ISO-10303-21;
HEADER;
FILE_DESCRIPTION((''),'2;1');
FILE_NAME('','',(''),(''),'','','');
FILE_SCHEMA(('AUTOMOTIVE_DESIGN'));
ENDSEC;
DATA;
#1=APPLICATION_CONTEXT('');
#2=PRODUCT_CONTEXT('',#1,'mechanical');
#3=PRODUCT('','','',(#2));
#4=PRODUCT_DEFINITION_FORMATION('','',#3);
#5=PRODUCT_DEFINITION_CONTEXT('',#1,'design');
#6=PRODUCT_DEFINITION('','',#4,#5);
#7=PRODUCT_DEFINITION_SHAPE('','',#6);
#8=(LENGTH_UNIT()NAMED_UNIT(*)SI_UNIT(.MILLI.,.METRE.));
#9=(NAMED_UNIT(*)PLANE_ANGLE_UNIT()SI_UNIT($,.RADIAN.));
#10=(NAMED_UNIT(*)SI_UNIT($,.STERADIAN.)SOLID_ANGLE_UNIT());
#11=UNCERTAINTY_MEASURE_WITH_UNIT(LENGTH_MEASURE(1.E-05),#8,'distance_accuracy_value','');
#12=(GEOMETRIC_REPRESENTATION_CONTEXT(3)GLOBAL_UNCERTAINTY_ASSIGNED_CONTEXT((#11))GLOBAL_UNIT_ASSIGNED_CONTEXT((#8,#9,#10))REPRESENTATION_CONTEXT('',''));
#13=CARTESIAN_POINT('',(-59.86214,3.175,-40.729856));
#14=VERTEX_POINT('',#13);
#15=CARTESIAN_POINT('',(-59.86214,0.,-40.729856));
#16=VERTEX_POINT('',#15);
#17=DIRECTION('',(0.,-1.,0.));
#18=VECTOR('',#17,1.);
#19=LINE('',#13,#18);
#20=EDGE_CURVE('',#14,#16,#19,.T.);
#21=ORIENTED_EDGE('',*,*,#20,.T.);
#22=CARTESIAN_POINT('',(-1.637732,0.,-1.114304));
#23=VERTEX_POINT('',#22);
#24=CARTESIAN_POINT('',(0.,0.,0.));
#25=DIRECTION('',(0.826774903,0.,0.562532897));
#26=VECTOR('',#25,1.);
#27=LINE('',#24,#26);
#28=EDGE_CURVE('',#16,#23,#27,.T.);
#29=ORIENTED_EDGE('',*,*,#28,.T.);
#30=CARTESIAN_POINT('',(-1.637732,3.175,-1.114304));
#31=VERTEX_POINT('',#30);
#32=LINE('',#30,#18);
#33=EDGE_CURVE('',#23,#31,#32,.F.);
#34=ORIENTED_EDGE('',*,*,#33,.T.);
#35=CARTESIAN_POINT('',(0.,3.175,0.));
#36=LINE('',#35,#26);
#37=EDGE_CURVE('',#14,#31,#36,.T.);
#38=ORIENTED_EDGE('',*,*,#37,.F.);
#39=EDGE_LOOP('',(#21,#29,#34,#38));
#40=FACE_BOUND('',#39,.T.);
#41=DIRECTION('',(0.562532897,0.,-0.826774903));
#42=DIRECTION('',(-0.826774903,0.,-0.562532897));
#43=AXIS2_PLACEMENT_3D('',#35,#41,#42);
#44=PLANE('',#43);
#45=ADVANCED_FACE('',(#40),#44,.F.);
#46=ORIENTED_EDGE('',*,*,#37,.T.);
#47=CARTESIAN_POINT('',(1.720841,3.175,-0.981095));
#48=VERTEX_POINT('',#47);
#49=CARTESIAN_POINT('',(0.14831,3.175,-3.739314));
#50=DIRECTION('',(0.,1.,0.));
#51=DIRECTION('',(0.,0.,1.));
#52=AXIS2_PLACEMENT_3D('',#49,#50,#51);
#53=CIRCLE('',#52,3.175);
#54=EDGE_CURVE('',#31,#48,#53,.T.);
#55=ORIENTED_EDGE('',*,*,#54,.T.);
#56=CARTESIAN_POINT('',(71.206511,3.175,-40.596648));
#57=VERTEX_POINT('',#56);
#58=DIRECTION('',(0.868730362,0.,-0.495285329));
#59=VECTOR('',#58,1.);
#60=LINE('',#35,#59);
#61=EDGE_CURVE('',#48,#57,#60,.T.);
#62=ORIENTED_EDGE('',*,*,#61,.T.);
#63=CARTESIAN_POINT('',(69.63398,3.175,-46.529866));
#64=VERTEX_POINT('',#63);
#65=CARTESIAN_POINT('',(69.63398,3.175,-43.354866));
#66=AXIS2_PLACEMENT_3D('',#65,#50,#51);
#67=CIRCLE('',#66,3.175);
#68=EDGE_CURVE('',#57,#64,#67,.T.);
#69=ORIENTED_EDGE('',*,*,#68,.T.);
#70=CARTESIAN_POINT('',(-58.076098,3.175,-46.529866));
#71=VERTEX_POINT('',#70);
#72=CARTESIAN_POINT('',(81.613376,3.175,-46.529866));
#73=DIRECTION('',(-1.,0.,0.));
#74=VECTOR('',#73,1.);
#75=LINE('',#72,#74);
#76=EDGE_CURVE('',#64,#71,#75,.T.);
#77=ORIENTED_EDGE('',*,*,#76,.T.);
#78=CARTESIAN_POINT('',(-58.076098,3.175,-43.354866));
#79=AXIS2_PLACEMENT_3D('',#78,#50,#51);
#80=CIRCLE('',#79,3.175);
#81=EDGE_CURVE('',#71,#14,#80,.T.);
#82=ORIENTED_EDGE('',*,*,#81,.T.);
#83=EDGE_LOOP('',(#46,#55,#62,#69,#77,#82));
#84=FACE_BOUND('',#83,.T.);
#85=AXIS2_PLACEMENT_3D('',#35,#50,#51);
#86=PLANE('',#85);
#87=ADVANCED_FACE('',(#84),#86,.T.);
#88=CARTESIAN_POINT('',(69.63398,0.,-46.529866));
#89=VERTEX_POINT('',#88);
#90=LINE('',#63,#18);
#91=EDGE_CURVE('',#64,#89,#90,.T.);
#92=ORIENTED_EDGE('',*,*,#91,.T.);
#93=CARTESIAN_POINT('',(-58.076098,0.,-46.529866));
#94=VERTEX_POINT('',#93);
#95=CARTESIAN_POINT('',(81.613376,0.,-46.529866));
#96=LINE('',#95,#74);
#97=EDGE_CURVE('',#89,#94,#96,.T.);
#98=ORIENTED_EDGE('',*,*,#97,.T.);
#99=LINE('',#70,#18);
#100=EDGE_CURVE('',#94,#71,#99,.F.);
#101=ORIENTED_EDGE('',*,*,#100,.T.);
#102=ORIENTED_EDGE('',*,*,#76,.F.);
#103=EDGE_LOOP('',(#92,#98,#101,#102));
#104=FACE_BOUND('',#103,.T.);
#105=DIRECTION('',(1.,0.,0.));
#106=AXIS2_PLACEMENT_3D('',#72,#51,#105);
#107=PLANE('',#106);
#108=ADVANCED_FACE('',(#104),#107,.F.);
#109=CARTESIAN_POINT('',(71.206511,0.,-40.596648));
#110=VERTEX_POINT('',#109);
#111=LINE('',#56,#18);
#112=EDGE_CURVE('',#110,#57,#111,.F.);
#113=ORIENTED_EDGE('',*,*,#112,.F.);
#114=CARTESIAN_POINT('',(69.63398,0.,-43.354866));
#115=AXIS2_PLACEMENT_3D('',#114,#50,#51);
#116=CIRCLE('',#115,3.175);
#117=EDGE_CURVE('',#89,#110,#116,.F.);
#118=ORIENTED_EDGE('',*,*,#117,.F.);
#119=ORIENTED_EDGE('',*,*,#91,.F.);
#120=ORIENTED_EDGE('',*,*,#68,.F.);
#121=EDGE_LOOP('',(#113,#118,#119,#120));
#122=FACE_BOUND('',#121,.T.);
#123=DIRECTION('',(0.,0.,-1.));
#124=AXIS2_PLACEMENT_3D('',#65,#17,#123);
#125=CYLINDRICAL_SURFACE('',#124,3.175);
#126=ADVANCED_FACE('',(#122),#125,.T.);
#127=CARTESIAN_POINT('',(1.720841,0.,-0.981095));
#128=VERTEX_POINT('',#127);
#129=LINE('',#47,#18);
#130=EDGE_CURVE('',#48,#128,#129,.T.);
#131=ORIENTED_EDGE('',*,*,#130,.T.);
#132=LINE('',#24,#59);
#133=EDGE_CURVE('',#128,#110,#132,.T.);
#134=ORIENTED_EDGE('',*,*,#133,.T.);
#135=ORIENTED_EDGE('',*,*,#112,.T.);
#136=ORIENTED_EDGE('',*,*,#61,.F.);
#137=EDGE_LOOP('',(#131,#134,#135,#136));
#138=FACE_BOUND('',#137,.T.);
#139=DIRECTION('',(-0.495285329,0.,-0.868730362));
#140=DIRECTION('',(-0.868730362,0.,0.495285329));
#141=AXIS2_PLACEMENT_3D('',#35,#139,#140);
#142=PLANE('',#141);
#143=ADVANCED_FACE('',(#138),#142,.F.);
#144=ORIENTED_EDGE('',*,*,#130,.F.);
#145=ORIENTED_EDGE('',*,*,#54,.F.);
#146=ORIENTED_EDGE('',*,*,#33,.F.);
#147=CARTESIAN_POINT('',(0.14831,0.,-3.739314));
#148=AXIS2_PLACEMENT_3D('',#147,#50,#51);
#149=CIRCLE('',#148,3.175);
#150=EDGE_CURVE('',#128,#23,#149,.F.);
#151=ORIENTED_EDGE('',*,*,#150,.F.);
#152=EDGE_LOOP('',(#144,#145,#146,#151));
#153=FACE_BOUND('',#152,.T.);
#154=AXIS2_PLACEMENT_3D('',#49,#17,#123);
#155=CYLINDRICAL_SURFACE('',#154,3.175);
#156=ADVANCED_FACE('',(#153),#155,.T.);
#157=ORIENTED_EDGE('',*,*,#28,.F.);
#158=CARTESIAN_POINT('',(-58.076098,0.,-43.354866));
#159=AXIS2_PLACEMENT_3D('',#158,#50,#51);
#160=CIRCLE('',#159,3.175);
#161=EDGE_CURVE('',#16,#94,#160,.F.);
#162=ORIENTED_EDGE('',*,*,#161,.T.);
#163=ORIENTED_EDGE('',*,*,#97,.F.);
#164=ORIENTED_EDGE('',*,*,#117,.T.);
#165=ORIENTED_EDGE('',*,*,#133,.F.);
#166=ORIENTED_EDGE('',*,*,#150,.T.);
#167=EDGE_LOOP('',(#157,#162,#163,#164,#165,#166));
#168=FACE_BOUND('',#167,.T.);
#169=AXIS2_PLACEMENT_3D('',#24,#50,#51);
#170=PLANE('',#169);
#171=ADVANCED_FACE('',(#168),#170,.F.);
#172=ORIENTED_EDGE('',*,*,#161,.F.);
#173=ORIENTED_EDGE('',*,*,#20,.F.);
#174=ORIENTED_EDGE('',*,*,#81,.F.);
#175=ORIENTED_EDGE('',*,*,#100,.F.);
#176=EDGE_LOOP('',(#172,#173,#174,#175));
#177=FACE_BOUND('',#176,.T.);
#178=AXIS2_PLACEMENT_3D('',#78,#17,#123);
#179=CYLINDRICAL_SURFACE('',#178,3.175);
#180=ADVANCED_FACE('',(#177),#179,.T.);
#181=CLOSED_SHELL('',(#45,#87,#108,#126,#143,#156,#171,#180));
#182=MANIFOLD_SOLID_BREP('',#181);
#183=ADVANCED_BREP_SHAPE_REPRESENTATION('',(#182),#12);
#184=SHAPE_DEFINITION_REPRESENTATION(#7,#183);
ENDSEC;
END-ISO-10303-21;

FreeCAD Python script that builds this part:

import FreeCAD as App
import Part
import Sketcher

V = App.Vector
Q = App.Units.Quantity


def edges_at(feature, points):
    """Names of the edges that pass closest to the given points."""
    edges = feature.Shape.Edges
    near = lambda p: min(range(len(edges)), key=lambda i: edges[i].distToShape(Part.Vertex(*p))[0])
    return sorted({f"Edge{near(p) + 1}" for p in points})


def add_polygon(sketch, points):
    """Adds a closed chain of lines whose ends are joined by coincident constraints."""
    first, n = sketch.GeometryCount, len(points)
    for a, b in zip(points, points[1:] + points[:1]):
        sketch.addGeometry(Part.LineSegment(App.Vector(*a, 0), App.Vector(*b, 0)), False)
    for i in range(n):
        sketch.addConstraint(Sketcher.Constraint("Coincident", first + i, 2, first + (i + 1) % n, 1))

doc = App.newDocument("Part")
body = doc.addObject("PartDesign::Body", "Body")

# Sketch on XZ plane
sketch1 = body.newObject("Sketcher::SketchObject", "Sketch")
sketch1.AttachmentSupport = (doc.getObject("XZ_Plane"), [""])
sketch1.MapMode = "FlatFace"
add_polygon(sketch1, [(-68, -47), (0, 0), (82, -47)])  # lines 0-2
sketch1.addConstraint([
    Sketcher.Constraint("Horizontal", 2),
    Sketcher.Constraint("Coincident", 0, 2, -1, 1),
    Sketcher.Constraint("DistanceX", 2, 2, 2, 1, Q("150 mm")),
    Sketcher.Constraint("Distance", 0, Q("82.714925 mm")),
    Sketcher.Constraint("Distance", 1, Q("93.945578 mm")),
])
pad1 = body.newObject("PartDesign::Pad", "Pad")
pad1.Profile = sketch1
pad1.Length = Q("0.125 in")
pad1.Reversed = True
doc.recompute()

fillet = body.newObject("PartDesign::Fillet", "Fillet")
fillet.Base = (pad1, edges_at(pad1, [(0, 1.587, 0), (-68.387, 1.587, -46.53), (81.613, 1.587, -46.53)]))
fillet.Radius = Q("0.125 in")

# Sketch on XZ plane
sketch2 = body.newObject("Sketcher::SketchObject", "Sketch001")
sketch2.AttachmentSupport = (doc.getObject("XZ_Plane"), [""])
sketch2.MapMode = "FlatFace"
sketch2.AttachmentOffset = App.Placement(V(0, 0, -0.125 * 25.4), App.Rotation())
sketch2.addGeometry(Part.Circle(V(-58.1, -43.4, 0), V(0, 0, 1), 0.7), False)
sketch2.addConstraint([
    Sketcher.Constraint("Diameter", 0, Q("1.425761 mm")),
    Sketcher.Constraint("DistanceX", 0, 3, -1, 1, Q("58.076098 mm")),
    Sketcher.Constraint("DistanceY", 0, 3, -1, 1, Q("43.354866 mm")),
])
pad2 = body.newObject("PartDesign::Pad", "Pad001")
pad2.Profile = sketch2
pad2.Length = Q("0.1 in")

doc.recompute()
